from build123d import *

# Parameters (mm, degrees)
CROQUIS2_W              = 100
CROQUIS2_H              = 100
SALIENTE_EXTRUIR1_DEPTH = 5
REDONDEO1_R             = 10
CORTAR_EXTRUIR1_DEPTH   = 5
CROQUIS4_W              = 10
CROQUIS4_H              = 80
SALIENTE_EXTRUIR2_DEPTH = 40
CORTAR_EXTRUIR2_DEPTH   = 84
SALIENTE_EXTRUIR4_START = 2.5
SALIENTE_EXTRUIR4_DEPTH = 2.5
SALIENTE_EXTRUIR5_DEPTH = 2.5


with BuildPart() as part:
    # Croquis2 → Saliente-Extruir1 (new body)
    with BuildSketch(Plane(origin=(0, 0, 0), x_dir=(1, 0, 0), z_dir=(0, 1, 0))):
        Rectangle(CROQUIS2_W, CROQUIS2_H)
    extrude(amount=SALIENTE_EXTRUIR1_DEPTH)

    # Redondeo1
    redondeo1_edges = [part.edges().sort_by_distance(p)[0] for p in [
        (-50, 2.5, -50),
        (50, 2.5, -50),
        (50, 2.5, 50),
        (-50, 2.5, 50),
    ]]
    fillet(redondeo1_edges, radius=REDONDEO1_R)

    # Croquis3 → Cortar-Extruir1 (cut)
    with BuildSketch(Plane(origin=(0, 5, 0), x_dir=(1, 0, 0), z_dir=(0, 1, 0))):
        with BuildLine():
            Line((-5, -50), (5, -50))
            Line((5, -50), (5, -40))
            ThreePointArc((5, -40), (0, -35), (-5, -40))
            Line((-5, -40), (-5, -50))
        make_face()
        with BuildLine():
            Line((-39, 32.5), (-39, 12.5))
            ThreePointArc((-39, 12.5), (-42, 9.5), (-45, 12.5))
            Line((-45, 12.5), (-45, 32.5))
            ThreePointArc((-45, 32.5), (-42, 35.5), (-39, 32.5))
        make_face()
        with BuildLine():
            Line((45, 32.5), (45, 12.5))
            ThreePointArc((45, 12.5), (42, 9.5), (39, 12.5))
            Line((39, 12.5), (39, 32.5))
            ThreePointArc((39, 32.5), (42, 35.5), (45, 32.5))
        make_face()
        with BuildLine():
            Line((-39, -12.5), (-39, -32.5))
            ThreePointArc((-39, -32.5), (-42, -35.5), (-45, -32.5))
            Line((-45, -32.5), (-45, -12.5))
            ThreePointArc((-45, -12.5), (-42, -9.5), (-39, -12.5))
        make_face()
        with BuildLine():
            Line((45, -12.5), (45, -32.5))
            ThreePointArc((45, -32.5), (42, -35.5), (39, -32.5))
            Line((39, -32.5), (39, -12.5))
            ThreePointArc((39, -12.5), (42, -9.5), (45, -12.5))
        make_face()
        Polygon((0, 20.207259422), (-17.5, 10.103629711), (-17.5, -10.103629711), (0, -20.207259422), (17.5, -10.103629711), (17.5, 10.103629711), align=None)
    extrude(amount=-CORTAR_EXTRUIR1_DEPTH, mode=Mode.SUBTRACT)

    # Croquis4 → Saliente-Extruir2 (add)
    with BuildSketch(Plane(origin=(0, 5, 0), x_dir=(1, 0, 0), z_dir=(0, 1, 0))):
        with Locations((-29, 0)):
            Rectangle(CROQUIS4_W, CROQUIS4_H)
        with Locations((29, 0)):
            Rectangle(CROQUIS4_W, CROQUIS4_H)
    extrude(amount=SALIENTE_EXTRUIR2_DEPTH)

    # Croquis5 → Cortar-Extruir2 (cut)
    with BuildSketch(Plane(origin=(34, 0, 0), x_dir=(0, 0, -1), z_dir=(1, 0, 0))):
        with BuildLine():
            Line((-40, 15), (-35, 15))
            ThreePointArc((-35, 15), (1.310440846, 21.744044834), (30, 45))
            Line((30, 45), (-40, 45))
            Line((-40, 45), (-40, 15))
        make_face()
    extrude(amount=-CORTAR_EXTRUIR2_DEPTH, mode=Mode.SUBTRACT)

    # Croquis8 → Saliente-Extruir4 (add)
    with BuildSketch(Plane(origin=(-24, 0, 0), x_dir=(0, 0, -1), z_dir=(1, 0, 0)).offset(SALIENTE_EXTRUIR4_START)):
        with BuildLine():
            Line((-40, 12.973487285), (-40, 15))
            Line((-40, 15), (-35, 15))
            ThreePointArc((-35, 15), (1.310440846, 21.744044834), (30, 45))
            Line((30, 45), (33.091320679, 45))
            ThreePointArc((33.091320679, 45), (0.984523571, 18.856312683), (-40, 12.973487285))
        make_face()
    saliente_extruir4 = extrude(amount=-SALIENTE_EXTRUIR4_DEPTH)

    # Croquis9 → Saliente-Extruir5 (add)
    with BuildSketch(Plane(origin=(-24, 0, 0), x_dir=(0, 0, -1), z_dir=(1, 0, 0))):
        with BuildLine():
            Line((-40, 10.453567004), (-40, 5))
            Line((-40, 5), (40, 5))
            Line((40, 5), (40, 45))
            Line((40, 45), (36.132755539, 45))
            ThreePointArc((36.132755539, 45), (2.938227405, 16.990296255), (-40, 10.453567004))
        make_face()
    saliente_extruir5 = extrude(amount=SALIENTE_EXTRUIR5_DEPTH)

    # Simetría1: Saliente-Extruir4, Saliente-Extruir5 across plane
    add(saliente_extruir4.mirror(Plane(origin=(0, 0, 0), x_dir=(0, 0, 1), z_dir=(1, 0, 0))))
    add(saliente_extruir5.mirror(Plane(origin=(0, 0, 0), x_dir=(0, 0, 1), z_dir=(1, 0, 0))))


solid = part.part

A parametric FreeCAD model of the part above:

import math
import FreeCAD as App
import Part
import Sketcher
Q = App.Units.Quantity


def edges_at(feature, points):
    """Names of the edges that pass closest to the given points."""
    edges = feature.Shape.Edges
    near = lambda p: min(range(len(edges)), key=lambda i: edges[i].distToShape(Part.Vertex(*p))[0])
    return sorted({f"Edge{near(p) + 1}" for p in points})

doc = App.newDocument("Part")
params = doc.addObject("Spreadsheet::Sheet", "Params")
for row, (alias, value) in enumerate([
    ("sketch1_width", "100 mm"),
    ("pad1_length", "5 mm"),
    ("fillet_radius", "10 mm"),
    ("sketch2_radius", "5 mm"),
    ("sketch2_radius2", "3 mm"),
    ("sketch2_height", "20 mm"),
    ("pocket1_length", "5 mm"),
    ("sketch3_width", "10 mm"),
    ("sketch3_height", "80 mm"),
    ("pad2_length", "40 mm"),
    ("sketch4_radius", "75 mm"),
    ("sketch4_width", "30 mm"),
    ("sketch4_height", "5 mm"),
    ("sketch4_height2", "70 mm"),
    ("pocket2_length", "84 mm"),
    ("sketch5_radius", "75 mm"),
    ("sketch5_radius2", "77.5 mm"),
    ("sketch5_height", "5 mm"),
    ("pad3_length", "2.5 mm"),
    ("sketch6_radius", "80 mm"),
    ("sketch6_width", "40 mm"),
    ("sketch6_height", "80 mm"),
    ("pad4_length", "2.5 mm"),
], start=1):
    params.set(f"A{row}", alias)
    params.set(f"B{row}", "=" + value)
    params.setAlias(f"B{row}", alias)

body = doc.addObject("PartDesign::Body", "Body")

sketch1 = body.newObject("Sketcher::SketchObject", "Sketch")
sketch1.AttachmentSupport = (doc.getObject("XZ_Plane"), [""])
sketch1.MapMode = "FlatFace"
sketch1.addGeometry(Part.LineSegment(App.Vector(-50, -50, 0), App.Vector(-50, 50, 0)), False)
sketch1.addGeometry(Part.LineSegment(App.Vector(-50, 50, 0), App.Vector(50, 50, 0)), False)
sketch1.addGeometry(Part.LineSegment(App.Vector(50, 50, 0), App.Vector(50, -50, 0)), False)
sketch1.addGeometry(Part.LineSegment(App.Vector(50, -50, 0), App.Vector(-50, -50, 0)), False)
sketch1.addConstraint(Sketcher.Constraint("Coincident", 0, 2, 1, 1))
sketch1.addConstraint(Sketcher.Constraint("Coincident", 1, 2, 2, 1))
sketch1.addConstraint(Sketcher.Constraint("Coincident", 2, 2, 3, 1))
sketch1.addConstraint(Sketcher.Constraint("Coincident", 3, 2, 0, 1))
sketch1.addConstraint(Sketcher.Constraint("Vertical", 0))
sketch1.addConstraint(Sketcher.Constraint("Horizontal", 1))
sketch1.addConstraint(Sketcher.Constraint("Vertical", 2))
sketch1.addConstraint(Sketcher.Constraint("Horizontal", 3))
sketch1.addConstraint(Sketcher.Constraint("Symmetric", 0, 2, 2, 2, -1, 1))
sketch1.addConstraint(Sketcher.Constraint("Equal", 3, 0))
sketch1.addConstraint(Sketcher.Constraint("DistanceX", 1, 1, 1, 2, 100.0))
sketch1.setExpression("Constraints[10]", "Params.sketch1_width")
pad1 = body.newObject("PartDesign::Pad", "Pad")
pad1.Profile = sketch1
pad1.setExpression("Length", "Params.pad1_length")
pad1.Reversed = True
doc.recompute()

fillet = body.newObject("PartDesign::Fillet", "Fillet")
fillet.Base = (pad1, edges_at(pad1, [
    (-50, 2.5, -50),
    (50, 2.5, -50),
    (50, 2.5, 50),
    (-50, 2.5, 50),
]))
fillet.setExpression("Radius", "Params.fillet_radius")

sketch2 = body.newObject("Sketcher::SketchObject", "Sketch001")
sketch2.AttachmentSupport = (doc.getObject("XZ_Plane"), [""])
sketch2.MapMode = "FlatFace"
sketch2.AttachmentOffset = App.Placement(App.Vector(0, 0, -5), App.Rotation())
sketch2.addGeometry(Part.LineSegment(App.Vector(-5, 50, 0), App.Vector(5, 50, 0)), False)
sketch2.addGeometry(Part.LineSegment(App.Vector(5, 50, 0), App.Vector(5, 40, 0)), False)
sketch2.addGeometry(Part.ArcOfCircle(Part.Circle(App.Vector(0, 40, 0), App.Vector(0, 0, 1), 5), math.radians(180), math.radians(360)), False)
sketch2.addGeometry(Part.LineSegment(App.Vector(-5, 40, 0), App.Vector(-5, 50, 0)), False)
sketch2.addGeometry(Part.LineSegment(App.Vector(-39, -12.5, 0), App.Vector(-39, -32.5, 0)), False)
sketch2.addGeometry(Part.ArcOfCircle(Part.Circle(App.Vector(-42, -32.5, 0), App.Vector(0, 0, 1), 3), math.radians(180), math.radians(360)), False)
sketch2.addGeometry(Part.LineSegment(App.Vector(-45, -32.5, 0), App.Vector(-45, -12.5, 0)), False)
sketch2.addGeometry(Part.ArcOfCircle(Part.Circle(App.Vector(-42, -12.5, 0), App.Vector(0, 0, 1), 3), math.radians(0), math.radians(180)), False)
sketch2.addGeometry(Part.LineSegment(App.Vector(45, -12.5, 0), App.Vector(45, -32.5, 0)), False)
sketch2.addGeometry(Part.ArcOfCircle(Part.Circle(App.Vector(42, -32.5, 0), App.Vector(0, 0, 1), 3), math.radians(180), math.radians(360)), False)
sketch2.addGeometry(Part.LineSegment(App.Vector(39, -32.5, 0), App.Vector(39, -12.5, 0)), False)
sketch2.addGeometry(Part.ArcOfCircle(Part.Circle(App.Vector(42, -12.5, 0), App.Vector(0, 0, 1), 3), math.radians(0), math.radians(180)), False)
sketch2.addGeometry(Part.LineSegment(App.Vector(-39, 32.5, 0), App.Vector(-39, 12.5, 0)), False)
sketch2.addGeometry(Part.ArcOfCircle(Part.Circle(App.Vector(-42, 12.5, 0), App.Vector(0, 0, 1), 3), math.radians(180), math.radians(360)), False)
sketch2.addGeometry(Part.LineSegment(App.Vector(-45, 12.5, 0), App.Vector(-45, 32.5, 0)), False)
sketch2.addGeometry(Part.ArcOfCircle(Part.Circle(App.Vector(-42, 32.5, 0), App.Vector(0, 0, 1), 3), math.radians(0), math.radians(180)), False)
sketch2.addGeometry(Part.LineSegment(App.Vector(45, 32.5, 0), App.Vector(45, 12.5, 0)), False)
sketch2.addGeometry(Part.ArcOfCircle(Part.Circle(App.Vector(42, 12.5, 0), App.Vector(0, 0, 1), 3), math.radians(180), math.radians(360)), False)
sketch2.addGeometry(Part.LineSegment(App.Vector(39, 12.5, 0), App.Vector(39, 32.5, 0)), False)
sketch2.addGeometry(Part.ArcOfCircle(Part.Circle(App.Vector(42, 32.5, 0), App.Vector(0, 0, 1), 3), math.radians(0), math.radians(180)), False)
sketch2.addGeometry(Part.LineSegment(App.Vector(0, -20.2, 0), App.Vector(-17.5, -10.1, 0)), False)
sketch2.addGeometry(Part.LineSegment(App.Vector(-17.5, -10.1, 0), App.Vector(-17.5, 10.1, 0)), False)
sketch2.addGeometry(Part.LineSegment(App.Vector(-17.5, 10.1, 0), App.Vector(0, 20.2, 0)), False)
sketch2.addGeometry(Part.LineSegment(App.Vector(0, 20.2, 0), App.Vector(17.5, 10.1, 0)), False)
sketch2.addGeometry(Part.LineSegment(App.Vector(17.5, 10.1, 0), App.Vector(17.5, -10.1, 0)), False)
sketch2.addGeometry(Part.LineSegment(App.Vector(17.5, -10.1, 0), App.Vector(0, -20.2, 0)), False)
sketch2.addConstraint(Sketcher.Constraint("Coincident", 0, 2, 1, 1))
sketch2.addConstraint(Sketcher.Constraint("Tangent", 1, 2, 2, 2))
sketch2.addConstraint(Sketcher.Constraint("Tangent", 2, 1, 3, 1))
sketch2.addConstraint(Sketcher.Constraint("Coincident", 3, 2, 0, 1))
sketch2.addConstraint(Sketcher.Constraint("Tangent", 4, 2, 5, 2))
sketch2.addConstraint(Sketcher.Constraint("Tangent", 5, 1, 6, 1))
sketch2.addConstraint(Sketcher.Constraint("Tangent", 6, 2, 7, 2))
sketch2.addConstraint(Sketcher.Constraint("Tangent", 7, 1, 4, 1))
sketch2.addConstraint(Sketcher.Constraint("Tangent", 8, 2, 9, 2))
sketch2.addConstraint(Sketcher.Constraint("Tangent", 9, 1, 10, 1))
sketch2.addConstraint(Sketcher.Constraint("Tangent", 10, 2, 11, 2))
sketch2.addConstraint(Sketcher.Constraint("Tangent", 11, 1, 8, 1))
sketch2.addConstraint(Sketcher.Constraint("Tangent", 12, 2, 13, 2))
sketch2.addConstraint(Sketcher.Constraint("Tangent", 13, 1, 14, 1))
sketch2.addConstraint(Sketcher.Constraint("Tangent", 14, 2, 15, 2))
sketch2.addConstraint(Sketcher.Constraint("Tangent", 15, 1, 12, 1))
sketch2.addConstraint(Sketcher.Constraint("Tangent", 16, 2, 17, 2))
sketch2.addConstraint(Sketcher.Constraint("Tangent", 17, 1, 18, 1))
sketch2.addConstraint(Sketcher.Constraint("Tangent", 18, 2, 19, 2))
sketch2.addConstraint(Sketcher.Constraint("Tangent", 19, 1, 16, 1))
sketch2.addConstraint(Sketcher.Constraint("Coincident", 20, 2, 21, 1))
sketch2.addConstraint(Sketcher.Constraint("Coincident", 21, 2, 22, 1))
sketch2.addConstraint(Sketcher.Constraint("Coincident", 22, 2, 23, 1))
sketch2.addConstraint(Sketcher.Constraint("Coincident", 23, 2, 24, 1))
sketch2.addConstraint(Sketcher.Constraint("Coincident", 24, 2, 25, 1))
sketch2.addConstraint(Sketcher.Constraint("Coincident", 25, 2, 20, 1))
sketch2.addConstraint(Sketcher.Constraint("Horizontal", 0))
sketch2.addConstraint(Sketcher.Constraint("Vertical", 1))
sketch2.addConstraint(Sketcher.Constraint("Vertical", 3))
sketch2.addConstraint(Sketcher.Constraint("Vertical", 4))
sketch2.addConstraint(Sketcher.Constraint("Vertical", 6))
sketch2.addConstraint(Sketcher.Constraint("Vertical", 8))
sketch2.addConstraint(Sketcher.Constraint("Vertical", 10))
sketch2.addConstraint(Sketcher.Constraint("Vertical", 12))
sketch2.addConstraint(Sketcher.Constraint("Vertical", 14))
sketch2.addConstraint(Sketcher.Constraint("Vertical", 16))
sketch2.addConstraint(Sketcher.Constraint("Vertical", 18))
sketch2.addConstraint(Sketcher.Constraint("Vertical", 21))
sketch2.addConstraint(Sketcher.Constraint("Vertical", 24))
sketch2.addConstraint(Sketcher.Constraint("Equal", 7, 9))
sketch2.addConstraint(Sketcher.Constraint("Equal", 11, 13))
sketch2.addConstraint(Sketcher.Constraint("Equal", 15, 17))
sketch2.addConstraint(Sketcher.Constraint("Symmetric", 11, 3, 13, 3, -1, 1))
sketch2.addConstraint(Sketcher.Constraint("Symmetric", 7, 3, 17, 3, -1, 1))
sketch2.addConstraint(Sketcher.Constraint("Symmetric", 20, 2, 23, 2, -1, 1))
sketch2.addConstraint(Sketcher.Constraint("Symmetric", 22, 2, 25, 2, -1, 1))
sketch2.addConstraint(Sketcher.Constraint("Symmetric", 5, 3, 9, 3, -2))
sketch2.addConstraint(Sketcher.Constraint("PointOnObject", 2, 3, -2))
sketch2.addConstraint(Sketcher.Constraint("PointOnObject", 22, 2, -2))
sketch2.addConstraint(Sketcher.Constraint("Parallel", 22, 25))
sketch2.addConstraint(Sketcher.Constraint("Horizontal", 7, 3, 11, 3))
sketch2.addConstraint(Sketcher.Constraint("Horizontal", 15, 3, 19, 3))
sketch2.addConstraint(Sketcher.Constraint("Horizontal", 21, 2, 23, 2))
sketch2.addConstraint(Sketcher.Constraint("Equal", 0, 1))
sketch2.addConstraint(Sketcher.Constraint("Equal", 10, 12))
sketch2.addConstraint(Sketcher.Constraint("Radius", 2, 5.0))
sketch2.addConstraint(Sketcher.Constraint("Radius", 5, 3.0))
sketch2.addConstraint(Sketcher.Constraint("DistanceY", 4, 2, 4, 1, 20.0))
sketch2.addConstraint(Sketcher.Constraint("Angle", 20, Q("150 deg")))
sketch2.addConstraint(Sketcher.Constraint("DistanceY", -1, 1, 2, 3, 40.0))
sketch2.addConstraint(Sketcher.Constraint("DistanceX", 5, 3, -1, 1, 42.0))
sketch2.addConstraint(Sketcher.Constraint("DistanceY", 7, 3, 13, 3, 25.0))
sketch2.addConstraint(Sketcher.Constraint("DistanceX", 20, 2, -1, 1, 17.5))
sketch2.addConstraint(Sketcher.Constraint("DistanceY", 21, 1, 21, 2, 20.207259))
sketch2.setExpression("Constraints[55]", "Params.sketch2_radius")
sketch2.setExpression("Constraints[56]", "Params.sketch2_radius2")
sketch2.setExpression("Constraints[57]", "Params.sketch2_height")
pocket1 = body.newObject("PartDesign::Pocket", "Pocket")
pocket1.Profile = sketch2
pocket1.setExpression("Length", "Params.pocket1_length")
pocket1.Reversed = True

sketch3 = body.newObject("Sketcher::SketchObject", "Sketch002")
sketch3.AttachmentSupport = (doc.getObject("XZ_Plane"), [""])
sketch3.MapMode = "FlatFace"
sketch3.AttachmentOffset = App.Placement(App.Vector(0, 0, -5), App.Rotation())
sketch3.addGeometry(Part.LineSegment(App.Vector(-34, -40, 0), App.Vector(-34, 40, 0)), False)
sketch3.addGeometry(Part.LineSegment(App.Vector(-34, 40, 0), App.Vector(-24, 40, 0)), False)
sketch3.addGeometry(Part.LineSegment(App.Vector(-24, 40, 0), App.Vector(-24, -40, 0)), False)
sketch3.addGeometry(Part.LineSegment(App.Vector(-24, -40, 0), App.Vector(-34, -40, 0)), False)
sketch3.addGeometry(Part.LineSegment(App.Vector(24, -40, 0), App.Vector(24, 40, 0)), False)
sketch3.addGeometry(Part.LineSegment(App.Vector(24, 40, 0), App.Vector(34, 40, 0)), False)
sketch3.addGeometry(Part.LineSegment(App.Vector(34, 40, 0), App.Vector(34, -40, 0)), False)
sketch3.addGeometry(Part.LineSegment(App.Vector(34, -40, 0), App.Vector(24, -40, 0)), False)
sketch3.addConstraint(Sketcher.Constraint("Coincident", 0, 2, 1, 1))
sketch3.addConstraint(Sketcher.Constraint("Coincident", 1, 2, 2, 1))
sketch3.addConstraint(Sketcher.Constraint("Coincident", 2, 2, 3, 1))
sketch3.addConstraint(Sketcher.Constraint("Coincident", 3, 2, 0, 1))
sketch3.addConstraint(Sketcher.Constraint("Coincident", 4, 2, 5, 1))
sketch3.addConstraint(Sketcher.Constraint("Coincident", 5, 2, 6, 1))
sketch3.addConstraint(Sketcher.Constraint("Coincident", 6, 2, 7, 1))
sketch3.addConstraint(Sketcher.Constraint("Coincident", 7, 2, 4, 1))
sketch3.addConstraint(Sketcher.Constraint("Vertical", 0))
sketch3.addConstraint(Sketcher.Constraint("Horizontal", 1))
sketch3.addConstraint(Sketcher.Constraint("Vertical", 2))
sketch3.addConstraint(Sketcher.Constraint("Horizontal", 3))
sketch3.addConstraint(Sketcher.Constraint("Vertical", 4))
sketch3.addConstraint(Sketcher.Constraint("Horizontal", 5))
sketch3.addConstraint(Sketcher.Constraint("Vertical", 6))
sketch3.addConstraint(Sketcher.Constraint("Horizontal", 7))
sketch3.addConstraint(Sketcher.Constraint("Symmetric", 2, 2, 4, 2, -1, 1))
sketch3.addConstraint(Sketcher.Constraint("Symmetric", 0, 2, 6, 2, -1, 1))
sketch3.addConstraint(Sketcher.Constraint("Horizontal", 1, 2, 4, 2))
sketch3.addConstraint(Sketcher.Constraint("DistanceX", 1, 1, 1, 2, 10.0))
sketch3.addConstraint(Sketcher.Constraint("DistanceY", 0, 1, 0, 2, 80.0))
sketch3.addConstraint(Sketcher.Constraint("DistanceX", 0, 2, -1, 1, 34.0))
sketch3.setExpression("Constraints[19]", "Params.sketch3_width")
sketch3.setExpression("Constraints[20]", "Params.sketch3_height")
pad2 = body.newObject("PartDesign::Pad", "Pad001")
pad2.Profile = sketch3
pad2.setExpression("Length", "Params.pad2_length")
pad2.Reversed = True

sketch4 = body.newObject("Sketcher::SketchObject", "Sketch003")
sketch4.AttachmentSupport = (doc.getObject("YZ_Plane"), [""])
sketch4.MapMode = "FlatFace"
sketch4.AttachmentOffset = App.Placement(App.Vector(0, 0, 34), App.Rotation())
sketch4.addGeometry(Part.LineSegment(App.Vector(15, 40, 0), App.Vector(15, 35, 0)), False)
sketch4.addGeometry(Part.ArcOfCircle(Part.Circle(App.Vector(90, 30, 0), App.Vector(0, 0, 1), 75), math.radians(176), math.radians(233)), False)
sketch4.addGeometry(Part.LineSegment(App.Vector(45, -30, 0), App.Vector(45, 40, 0)), False)
sketch4.addGeometry(Part.LineSegment(App.Vector(45, 40, 0), App.Vector(15, 40, 0)), False)
sketch4.addConstraint(Sketcher.Constraint("Coincident", 0, 2, 1, 1))
sketch4.addConstraint(Sketcher.Constraint("Coincident", 1, 2, 2, 1))
sketch4.addConstraint(Sketcher.Constraint("Coincident", 2, 2, 3, 1))
sketch4.addConstraint(Sketcher.Constraint("Coincident", 3, 2, 0, 1))
sketch4.addConstraint(Sketcher.Constraint("Vertical", 0))
sketch4.addConstraint(Sketcher.Constraint("Vertical", 2))
sketch4.addConstraint(Sketcher.Constraint("Horizontal", 3))
sketch4.addConstraint(Sketcher.Constraint("Radius", 1, 75.0))
sketch4.addConstraint(Sketcher.Constraint("DistanceX", 3, 2, 3, 1, 30.0))
sketch4.addConstraint(Sketcher.Constraint("DistanceY", 0, 2, 0, 1, 5.0))
sketch4.addConstraint(Sketcher.Constraint("DistanceY", 2, 1, 2, 2, 70.0))
sketch4.addConstraint(Sketcher.Constraint("DistanceX", -1, 1, 0, 2, 15.0))
sketch4.addConstraint(Sketcher.Constraint("DistanceY", -1, 1, 0, 2, 35.0))
sketch4.setExpression("Constraints[7]", "Params.sketch4_radius")
sketch4.setExpression("Constraints[8]", "Params.sketch4_width")
sketch4.setExpression("Constraints[9]", "Params.sketch4_height")
sketch4.setExpression("Constraints[10]", "Params.sketch4_height2")
pocket2 = body.newObject("PartDesign::Pocket", "Pocket001")
pocket2.Profile = sketch4
pocket2.setExpression("Length", "Params.pocket2_length")

sketch5 = body.newObject("Sketcher::SketchObject", "Sketch004")
sketch5.AttachmentSupport = (doc.getObject("YZ_Plane"), [""])
sketch5.MapMode = "FlatFace"
sketch5.AttachmentOffset = App.Placement(App.Vector(0, 0, -21.5), App.Rotation())
sketch5.addGeometry(Part.LineSegment(App.Vector(15, 40, 0), App.Vector(13, 40, 0)), False)
sketch5.addGeometry(Part.ArcOfCircle(Part.Circle(App.Vector(89.8, 30.1, 0), App.Vector(0, 0, 1), 77.5), math.radians(173), math.radians(235)), False)
sketch5.addGeometry(Part.LineSegment(App.Vector(45, -33.1, 0), App.Vector(45, -30, 0)), False)
sketch5.addGeometry(Part.ArcOfCircle(Part.Circle(App.Vector(89.8, 30.1, 0), App.Vector(0, 0, 1), 75), math.radians(176), math.radians(233)), False)
sketch5.addGeometry(Part.LineSegment(App.Vector(15, 35, 0), App.Vector(15, 40, 0)), False)
sketch5.addConstraint(Sketcher.Constraint("Coincident", 0, 2, 1, 1))
sketch5.addConstraint(Sketcher.Constraint("Coincident", 1, 2, 2, 1))
sketch5.addConstraint(Sketcher.Constraint("Coincident", 2, 2, 3, 2))
sketch5.addConstraint(Sketcher.Constraint("Coincident", 3, 1, 4, 1))
sketch5.addConstraint(Sketcher.Constraint("Coincident", 4, 2, 0, 1))
sketch5.addConstraint(Sketcher.Constraint("Horizontal", 0))
sketch5.addConstraint(Sketcher.Constraint("Vertical", 2))
sketch5.addConstraint(Sketcher.Constraint("Vertical", 4))
sketch5.addConstraint(Sketcher.Constraint("Coincident", 3, 3, 1, 3))
sketch5.addConstraint(Sketcher.Constraint("Radius", 3, 75.0))
sketch5.addConstraint(Sketcher.Constraint("Radius", 1, 77.5))
sketch5.addConstraint(Sketcher.Constraint("DistanceY", 4, 1, 4, 2, 5.0))
sketch5.addConstraint(Sketcher.Constraint("DistanceY", -1, 1, 0, 2, 40.0))
sketch5.addConstraint(Sketcher.Constraint("DistanceX", -1, 1, 1, 2, 45.0))
sketch5.addConstraint(Sketcher.Constraint("DistanceY", 2, 2, -1, 1, 30.0))
sketch5.addConstraint(Sketcher.Constraint("DistanceX", -1, 1, 3, 1, 15.0))
sketch5.setExpression("Constraints[9]", "Params.sketch5_radius")
sketch5.setExpression("Constraints[10]", "Params.sketch5_radius2")
sketch5.setExpression("Constraints[11]", "Params.sketch5_height")
pad3 = body.newObject("PartDesign::Pad", "Pad002")
pad3.Profile = sketch5
pad3.setExpression("Length", "Params.pad3_length")
pad3.Reversed = True

sketch6 = body.newObject("Sketcher::SketchObject", "Sketch005")
sketch6.AttachmentSupport = (doc.getObject("YZ_Plane"), [""])
sketch6.MapMode = "FlatFace"
sketch6.AttachmentOffset = App.Placement(App.Vector(0, 0, -24), App.Rotation())
sketch6.addGeometry(Part.LineSegment(App.Vector(10.5, 40, 0), App.Vector(5, 40, 0)), False)
sketch6.addGeometry(Part.LineSegment(App.Vector(5, 40, 0), App.Vector(5, -40, 0)), False)
sketch6.addGeometry(Part.LineSegment(App.Vector(5, -40, 0), App.Vector(45, -40, 0)), False)
sketch6.addGeometry(Part.LineSegment(App.Vector(45, -40, 0), App.Vector(45, -36.1, 0)), False)
sketch6.addGeometry(Part.ArcOfCircle(Part.Circle(App.Vector(89.8, 30.1, 0), App.Vector(0, 0, 1), 80), math.radians(173), math.radians(236)), False)
sketch6.addConstraint(Sketcher.Constraint("Coincident", 0, 2, 1, 1))
sketch6.addConstraint(Sketcher.Constraint("Coincident", 1, 2, 2, 1))
sketch6.addConstraint(Sketcher.Constraint("Coincident", 2, 2, 3, 1))
sketch6.addConstraint(Sketcher.Constraint("Coincident", 3, 2, 4, 2))
sketch6.addConstraint(Sketcher.Constraint("Coincident", 4, 1, 0, 1))
sketch6.addConstraint(Sketcher.Constraint("Horizontal", 0))
sketch6.addConstraint(Sketcher.Constraint("Vertical", 1))
sketch6.addConstraint(Sketcher.Constraint("Horizontal", 2))
sketch6.addConstraint(Sketcher.Constraint("Vertical", 3))
sketch6.addConstraint(Sketcher.Constraint("Radius", 4, 80.0))
sketch6.addConstraint(Sketcher.Constraint("DistanceX", 2, 1, 2, 2, 40.0))
sketch6.addConstraint(Sketcher.Constraint("DistanceY", 1, 2, 1, 1, 80.0))
sketch6.addConstraint(Sketcher.Constraint("DistanceX", -1, 1, 0, 2, 5.0))
sketch6.addConstraint(Sketcher.Constraint("DistanceY", -1, 1, 0, 2, 40.0))
sketch6.addConstraint(Sketcher.Constraint("DistanceX", -1, 1, 4, 3, 89.840999))
sketch6.addConstraint(Sketcher.Constraint("DistanceX", 0, 2, 0, 1, 5.453567))
sketch6.setExpression("Constraints[9]", "Params.sketch6_radius")
sketch6.setExpression("Constraints[10]", "Params.sketch6_width")
sketch6.setExpression("Constraints[11]", "Params.sketch6_height")
pad4 = body.newObject("PartDesign::Pad", "Pad003")
pad4.Profile = sketch6
pad4.setExpression("Length", "Params.pad4_length")
doc.recompute()

mirrored = body.newObject("PartDesign::Mirrored", "Mirrored")
mirrored.Originals = [pad3, pad4]
mirrored.MirrorPlane = (doc.getObject("YZ_Plane"), [""])
body.Tip = mirrored

doc.recompute()
